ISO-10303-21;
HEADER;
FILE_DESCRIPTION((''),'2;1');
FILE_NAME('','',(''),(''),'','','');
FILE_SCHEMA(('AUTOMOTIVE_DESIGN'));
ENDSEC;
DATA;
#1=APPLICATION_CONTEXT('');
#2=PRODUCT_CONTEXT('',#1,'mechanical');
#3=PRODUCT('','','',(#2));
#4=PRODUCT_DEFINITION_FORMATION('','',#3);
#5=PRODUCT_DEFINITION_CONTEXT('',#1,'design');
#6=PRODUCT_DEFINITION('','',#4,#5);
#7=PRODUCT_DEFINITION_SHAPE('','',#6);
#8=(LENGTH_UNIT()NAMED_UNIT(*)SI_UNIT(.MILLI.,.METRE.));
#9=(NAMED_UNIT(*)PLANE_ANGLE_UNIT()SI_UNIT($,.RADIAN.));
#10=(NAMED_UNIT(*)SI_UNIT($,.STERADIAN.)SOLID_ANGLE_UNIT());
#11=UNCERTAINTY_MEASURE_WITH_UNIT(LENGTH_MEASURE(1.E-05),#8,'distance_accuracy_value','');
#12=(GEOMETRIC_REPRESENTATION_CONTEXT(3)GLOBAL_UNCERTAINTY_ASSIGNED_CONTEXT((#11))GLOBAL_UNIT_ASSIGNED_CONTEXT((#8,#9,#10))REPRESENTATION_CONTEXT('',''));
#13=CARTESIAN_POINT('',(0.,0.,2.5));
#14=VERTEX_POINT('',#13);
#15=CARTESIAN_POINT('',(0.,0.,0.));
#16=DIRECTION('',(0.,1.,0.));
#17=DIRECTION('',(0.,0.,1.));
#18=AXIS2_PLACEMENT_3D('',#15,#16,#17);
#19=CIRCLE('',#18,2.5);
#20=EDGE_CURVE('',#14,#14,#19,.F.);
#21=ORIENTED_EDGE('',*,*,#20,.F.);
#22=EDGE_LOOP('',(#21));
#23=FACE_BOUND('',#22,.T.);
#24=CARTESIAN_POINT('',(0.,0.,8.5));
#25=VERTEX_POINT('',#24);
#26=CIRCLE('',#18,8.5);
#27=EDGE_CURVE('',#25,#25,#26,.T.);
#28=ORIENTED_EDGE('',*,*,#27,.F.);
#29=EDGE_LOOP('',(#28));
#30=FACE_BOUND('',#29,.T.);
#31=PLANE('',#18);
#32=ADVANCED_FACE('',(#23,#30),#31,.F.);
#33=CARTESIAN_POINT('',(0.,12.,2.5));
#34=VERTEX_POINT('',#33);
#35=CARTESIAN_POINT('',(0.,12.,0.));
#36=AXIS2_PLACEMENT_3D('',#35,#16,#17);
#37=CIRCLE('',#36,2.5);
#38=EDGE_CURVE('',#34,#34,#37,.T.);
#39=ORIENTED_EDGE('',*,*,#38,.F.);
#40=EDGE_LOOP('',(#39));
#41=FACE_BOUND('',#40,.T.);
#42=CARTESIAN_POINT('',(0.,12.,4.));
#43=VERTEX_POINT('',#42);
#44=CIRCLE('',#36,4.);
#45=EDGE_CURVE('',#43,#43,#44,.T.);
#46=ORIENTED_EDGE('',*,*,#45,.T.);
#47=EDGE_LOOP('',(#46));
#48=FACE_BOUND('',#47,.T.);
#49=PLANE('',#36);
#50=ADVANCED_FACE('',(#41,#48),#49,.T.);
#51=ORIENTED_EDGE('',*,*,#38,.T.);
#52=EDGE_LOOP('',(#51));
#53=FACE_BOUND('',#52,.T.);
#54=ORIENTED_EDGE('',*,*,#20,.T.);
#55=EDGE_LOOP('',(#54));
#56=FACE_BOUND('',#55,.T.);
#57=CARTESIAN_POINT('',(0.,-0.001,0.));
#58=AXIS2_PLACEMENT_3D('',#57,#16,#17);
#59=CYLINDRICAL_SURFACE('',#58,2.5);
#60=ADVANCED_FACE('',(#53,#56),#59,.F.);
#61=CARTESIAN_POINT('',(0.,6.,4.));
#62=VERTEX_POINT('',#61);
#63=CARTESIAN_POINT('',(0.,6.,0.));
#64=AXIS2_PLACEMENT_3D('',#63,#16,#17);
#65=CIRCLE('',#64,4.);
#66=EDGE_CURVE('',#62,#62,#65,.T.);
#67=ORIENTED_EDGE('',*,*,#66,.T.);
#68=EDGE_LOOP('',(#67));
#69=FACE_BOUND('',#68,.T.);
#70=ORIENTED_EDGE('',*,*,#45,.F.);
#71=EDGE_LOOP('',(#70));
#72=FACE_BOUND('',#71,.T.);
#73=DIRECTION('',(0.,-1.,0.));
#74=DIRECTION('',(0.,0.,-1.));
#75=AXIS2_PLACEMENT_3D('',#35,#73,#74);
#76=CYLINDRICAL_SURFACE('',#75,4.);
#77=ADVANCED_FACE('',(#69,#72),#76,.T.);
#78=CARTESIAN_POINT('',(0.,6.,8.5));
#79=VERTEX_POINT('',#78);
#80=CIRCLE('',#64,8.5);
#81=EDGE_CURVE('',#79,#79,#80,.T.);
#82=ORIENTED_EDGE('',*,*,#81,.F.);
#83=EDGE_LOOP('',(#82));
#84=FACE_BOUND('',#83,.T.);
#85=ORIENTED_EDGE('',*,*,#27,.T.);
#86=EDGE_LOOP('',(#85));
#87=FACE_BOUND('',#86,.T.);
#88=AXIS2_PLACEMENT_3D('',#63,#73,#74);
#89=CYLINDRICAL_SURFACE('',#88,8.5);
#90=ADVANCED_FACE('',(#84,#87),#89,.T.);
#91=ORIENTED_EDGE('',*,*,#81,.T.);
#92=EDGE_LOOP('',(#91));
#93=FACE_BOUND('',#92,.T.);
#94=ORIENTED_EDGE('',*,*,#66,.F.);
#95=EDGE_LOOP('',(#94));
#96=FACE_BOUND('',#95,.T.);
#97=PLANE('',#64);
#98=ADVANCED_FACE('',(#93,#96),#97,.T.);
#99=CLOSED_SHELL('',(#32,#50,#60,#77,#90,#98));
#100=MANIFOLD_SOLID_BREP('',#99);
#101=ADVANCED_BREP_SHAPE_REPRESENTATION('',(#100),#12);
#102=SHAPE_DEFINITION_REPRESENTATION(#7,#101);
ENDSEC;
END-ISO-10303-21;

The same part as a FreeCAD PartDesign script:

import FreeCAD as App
import Part
import Sketcher

V = App.Vector
Q = App.Units.Quantity

doc = App.newDocument("Part")
body = doc.addObject("PartDesign::Body", "Body")

# Sketch on XZ plane
sketch1 = body.newObject("Sketcher::SketchObject", "Sketch")
sketch1.AttachmentSupport = (doc.getObject("XZ_Plane"), [""])
sketch1.MapMode = "FlatFace"
sketch1.addGeometry(Part.Circle(V(0, 0, 0), V(0, 0, 1), 8), False)
sketch1.addConstraint([
    Sketcher.Constraint("Coincident", 0, 3, -1, 1),
    Sketcher.Constraint("Diameter", 0, Q("17 mm")),
])
pad1 = body.newObject("PartDesign::Pad", "Pad")
pad1.Profile = sketch1
pad1.Length = 6
pad1.Reversed = True

# Sketch on XZ plane
sketch2 = body.newObject("Sketcher::SketchObject", "Sketch001")
sketch2.AttachmentSupport = (doc.getObject("XZ_Plane"), [""])
sketch2.MapMode = "FlatFace"
sketch2.AttachmentOffset = App.Placement(V(0, 0, -6), App.Rotation())
sketch2.addGeometry(Part.Circle(V(0, 0, 0), V(0, 0, 1), 4), False)
sketch2.addConstraint([
    Sketcher.Constraint("Coincident", 0, 3, -1, 1),
    Sketcher.Constraint("Diameter", 0, Q("8 mm")),
])
pad2 = body.newObject("PartDesign::Pad", "Pad001")
pad2.Profile = sketch2
pad2.Length = 6
pad2.Reversed = True

# Sketch on XZ plane
sketch3 = body.newObject("Sketcher::SketchObject", "Sketch002")
sketch3.AttachmentSupport = (doc.getObject("XZ_Plane"), [""])
sketch3.MapMode = "FlatFace"
sketch3.AttachmentOffset = App.Placement(V(0, 0, -12), App.Rotation())
sketch3.addGeometry(Part.Circle(V(0, 0, 0), V(0, 0, 1), 2.5), False)
sketch3.addConstraint([
    Sketcher.Constraint("Coincident", 0, 3, -1, 1),
    Sketcher.Constraint("Diameter", 0, Q("5 mm")),
])
pocket1 = body.newObject("PartDesign::Pocket", "Pocket")
pocket1.Profile = sketch3
pocket1.Type = "UpToFirst"
pocket1.Reversed = True

doc.recompute()
